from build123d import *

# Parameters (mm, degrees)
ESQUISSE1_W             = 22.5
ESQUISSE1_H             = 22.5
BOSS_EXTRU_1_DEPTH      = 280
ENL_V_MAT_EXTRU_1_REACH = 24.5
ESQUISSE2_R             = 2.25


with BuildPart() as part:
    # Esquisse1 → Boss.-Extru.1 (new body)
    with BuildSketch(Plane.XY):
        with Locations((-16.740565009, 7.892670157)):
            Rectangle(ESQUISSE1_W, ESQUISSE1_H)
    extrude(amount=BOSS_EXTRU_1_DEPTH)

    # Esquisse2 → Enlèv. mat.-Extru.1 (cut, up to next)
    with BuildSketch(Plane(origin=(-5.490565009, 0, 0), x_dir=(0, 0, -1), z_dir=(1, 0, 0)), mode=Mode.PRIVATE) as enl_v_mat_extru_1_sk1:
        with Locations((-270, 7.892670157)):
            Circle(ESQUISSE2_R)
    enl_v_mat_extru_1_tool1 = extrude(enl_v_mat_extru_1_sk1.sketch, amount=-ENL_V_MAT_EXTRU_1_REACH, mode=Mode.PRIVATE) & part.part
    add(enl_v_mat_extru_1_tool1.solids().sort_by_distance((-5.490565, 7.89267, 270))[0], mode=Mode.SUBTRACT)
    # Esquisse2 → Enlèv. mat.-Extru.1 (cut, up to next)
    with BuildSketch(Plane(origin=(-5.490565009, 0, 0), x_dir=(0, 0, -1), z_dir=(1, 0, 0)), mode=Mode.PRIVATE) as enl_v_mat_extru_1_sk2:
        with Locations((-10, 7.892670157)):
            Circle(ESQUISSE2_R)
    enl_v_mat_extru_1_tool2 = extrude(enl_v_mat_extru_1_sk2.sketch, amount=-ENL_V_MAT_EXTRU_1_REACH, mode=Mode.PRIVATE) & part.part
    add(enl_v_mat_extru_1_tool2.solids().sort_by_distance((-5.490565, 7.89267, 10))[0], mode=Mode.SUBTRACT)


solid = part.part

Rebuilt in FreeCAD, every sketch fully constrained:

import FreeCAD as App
import Part
import Sketcher

V = App.Vector

doc = App.newDocument("Part")
params = doc.addObject("Spreadsheet::Sheet", "Params")
for row, (alias, value) in enumerate([
    ("sketch1_width", "22.5 mm"),
    ("pad1_length", "280 mm"),
    ("sketch2_diameter", "4.5 mm"),
    ("sketch3_diameter", "4.5 mm"),
], start=1):
    params.set(f"A{row}", alias)
    params.set(f"B{row}", "=" + value)
    params.setAlias(f"B{row}", alias)

body = doc.addObject("PartDesign::Body", "Body")

sketch1 = doc.addObject("Sketcher::SketchObject", "Sketch")
body.addObject(sketch1)
sketch1.AttachmentSupport = (doc.XY_Plane, [""])
sketch1.MapMode = "FlatFace"
sketch1.addGeometry(Part.LineSegment(V(-27.990565, 19.14267, 0), V(-27.990565, -3.35733, 0)), False)
sketch1.addGeometry(Part.LineSegment(V(-27.990565, -3.35733, 0), V(-5.490565, -3.35733, 0)), False)
sketch1.addGeometry(Part.LineSegment(V(-5.490565, -3.35733, 0), V(-5.490565, 19.14267, 0)), False)
sketch1.addGeometry(Part.LineSegment(V(-5.490565, 19.14267, 0), V(-27.990565, 19.14267, 0)), False)
sketch1.addConstraint(Sketcher.Constraint("Coincident", 0, 2, 1, 1))
sketch1.addConstraint(Sketcher.Constraint("Coincident", 1, 2, 2, 1))
sketch1.addConstraint(Sketcher.Constraint("Coincident", 2, 2, 3, 1))
sketch1.addConstraint(Sketcher.Constraint("Coincident", 3, 2, 0, 1))
sketch1.addConstraint(Sketcher.Constraint("Vertical", 0))
sketch1.addConstraint(Sketcher.Constraint("Horizontal", 1))
sketch1.addConstraint(Sketcher.Constraint("Vertical", 2))
sketch1.addConstraint(Sketcher.Constraint("Horizontal", 3))
sketch1.addConstraint(Sketcher.Constraint("Equal", 3, 0))
sketch1.addConstraint(Sketcher.Constraint("DistanceX", 1, 1, 1, 2, 22.5))
sketch1.addConstraint(Sketcher.Constraint("DistanceY", 0, 2, -1, 1, 3.35733))
sketch1.addConstraint(Sketcher.Constraint("DistanceX", 0, 2, -1, 1, 27.990565))
sketch1.setExpression("Constraints[9]", "Params.sketch1_width")
pad1 = doc.addObject("PartDesign::Pad", "Pad")
body.addObject(pad1)
pad1.Profile = sketch1
pad1.setExpression("Length", "Params.pad1_length")

sketch2 = doc.addObject("Sketcher::SketchObject", "Sketch001")
body.addObject(sketch2)
sketch2.AttachmentSupport = (doc.YZ_Plane, [""])
sketch2.MapMode = "FlatFace"
sketch2.AttachmentOffset = App.Placement(V(0, 0, -5.490565), App.Rotation())
sketch2.addGeometry(Part.Circle(V(7.89267, 270, 0), V(0, 0, 1), 2.25), False)
sketch2.addConstraint(Sketcher.Constraint("Diameter", 0, 4.5))
sketch2.addConstraint(Sketcher.Constraint("DistanceY", -1, 1, 0, 3, 270.0))
sketch2.addConstraint(Sketcher.Constraint("DistanceX", -1, 1, 0, 3, 7.89267))
sketch2.setExpression("Constraints[0]", "Params.sketch2_diameter")
pocket1 = doc.addObject("PartDesign::Pocket", "Pocket")
body.addObject(pocket1)
pocket1.Profile = sketch2
pocket1.Type = "UpToFirst"

sketch3 = doc.addObject("Sketcher::SketchObject", "Sketch002")
body.addObject(sketch3)
sketch3.AttachmentSupport = (doc.YZ_Plane, [""])
sketch3.MapMode = "FlatFace"
sketch3.AttachmentOffset = App.Placement(V(0, 0, -5.490565), App.Rotation())
sketch3.addGeometry(Part.Circle(V(7.89267, 10, 0), V(0, 0, 1), 2.25), False)
sketch3.addConstraint(Sketcher.Constraint("Diameter", 0, 4.5))
sketch3.addConstraint(Sketcher.Constraint("DistanceY", -1, 1, 0, 3, 10.0))
sketch3.addConstraint(Sketcher.Constraint("DistanceX", -1, 1, 0, 3, 7.89267))
sketch3.setExpression("Constraints[0]", "Params.sketch3_diameter")
pocket2 = doc.addObject("PartDesign::Pocket", "Pocket001")
body.addObject(pocket2)
pocket2.Profile = sketch3
pocket2.Type = "UpToFirst"

doc.recompute()
